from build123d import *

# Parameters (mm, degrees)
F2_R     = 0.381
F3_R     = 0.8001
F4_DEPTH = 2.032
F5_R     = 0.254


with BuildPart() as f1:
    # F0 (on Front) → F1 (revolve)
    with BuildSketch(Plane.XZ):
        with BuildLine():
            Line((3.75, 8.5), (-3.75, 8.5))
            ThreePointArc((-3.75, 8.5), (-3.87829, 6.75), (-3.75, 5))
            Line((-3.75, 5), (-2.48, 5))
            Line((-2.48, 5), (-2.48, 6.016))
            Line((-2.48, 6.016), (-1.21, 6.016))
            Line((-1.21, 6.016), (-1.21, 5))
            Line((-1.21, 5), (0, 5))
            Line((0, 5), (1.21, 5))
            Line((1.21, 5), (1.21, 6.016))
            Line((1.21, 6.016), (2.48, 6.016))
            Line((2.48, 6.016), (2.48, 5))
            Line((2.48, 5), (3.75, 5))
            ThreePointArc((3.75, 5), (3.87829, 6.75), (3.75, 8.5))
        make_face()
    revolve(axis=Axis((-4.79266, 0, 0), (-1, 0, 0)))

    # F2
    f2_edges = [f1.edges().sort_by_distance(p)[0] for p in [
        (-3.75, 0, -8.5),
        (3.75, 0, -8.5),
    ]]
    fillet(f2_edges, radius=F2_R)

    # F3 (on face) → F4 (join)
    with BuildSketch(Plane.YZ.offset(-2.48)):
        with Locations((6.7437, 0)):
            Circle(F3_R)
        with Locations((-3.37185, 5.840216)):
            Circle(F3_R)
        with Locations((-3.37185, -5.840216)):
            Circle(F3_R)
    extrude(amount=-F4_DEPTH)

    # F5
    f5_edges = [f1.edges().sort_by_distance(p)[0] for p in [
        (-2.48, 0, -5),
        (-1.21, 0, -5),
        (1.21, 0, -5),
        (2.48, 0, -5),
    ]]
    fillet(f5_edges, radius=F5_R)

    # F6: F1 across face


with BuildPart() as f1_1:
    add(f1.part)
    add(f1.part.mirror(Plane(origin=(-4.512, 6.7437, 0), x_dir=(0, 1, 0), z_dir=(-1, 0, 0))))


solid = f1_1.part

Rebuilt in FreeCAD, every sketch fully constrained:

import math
import FreeCAD as App
import Part
import Sketcher
Q = App.Units.Quantity


def edges_at(feature, points):
    """Names of the edges that pass closest to the given points."""
    edges = feature.Shape.Edges
    near = lambda p: min(range(len(edges)), key=lambda i: edges[i].distToShape(Part.Vertex(*p))[0])
    return sorted({f"Edge{near(p) + 1}" for p in points})

doc = App.newDocument("Part")
params = doc.addObject("Spreadsheet::Sheet", "Params")
for row, (alias, value) in enumerate([
    ("sketch1_width", "0.05 in"),
    ("sketch1_height", "0.04 in"),
    ("revolution_angle", "360 deg"),
    ("fillet_radius", "0.015 in"),
    ("sketch2_diameter", "0.063 in"),
    ("pad1_length", "0.08 in"),
    ("fillet2_radius", "0.01 in"),
], start=1):
    params.set(f"A{row}", alias)
    params.set(f"B{row}", "=" + value)
    params.setAlias(f"B{row}", alias)

body = doc.addObject("PartDesign::Body", "Body")

sketch1 = body.newObject("Sketcher::SketchObject", "Sketch")
sketch1.AttachmentSupport = (doc.getObject("XZ_Plane"), [""])
sketch1.MapMode = "FlatFace"
sketch1.addGeometry(Part.LineSegment(App.Vector(3.75, 8.5, 0), App.Vector(-3.75, 8.5, 0)), False)
sketch1.addGeometry(Part.ArcOfCircle(Part.Circle(App.Vector(8.121703, 6.75, 0), App.Vector(0, 0, 1), 11.999993), math.radians(171.614457), math.radians(188.385543)), False)
sketch1.addGeometry(Part.LineSegment(App.Vector(-3.75, 5, 0), App.Vector(-2.48, 5, 0)), False)
sketch1.addGeometry(Part.LineSegment(App.Vector(-2.48, 5, 0), App.Vector(-2.48, 6.016, 0)), False)
sketch1.addGeometry(Part.LineSegment(App.Vector(-2.48, 6.016, 0), App.Vector(-1.21, 6.016, 0)), False)
sketch1.addGeometry(Part.LineSegment(App.Vector(-1.21, 6.016, 0), App.Vector(-1.21, 5, 0)), False)
sketch1.addGeometry(Part.LineSegment(App.Vector(-1.21, 5, 0), App.Vector(1.21, 5, 0)), False)
sketch1.addGeometry(Part.LineSegment(App.Vector(1.21, 5, 0), App.Vector(1.21, 6.016, 0)), False)
sketch1.addGeometry(Part.LineSegment(App.Vector(1.21, 6.016, 0), App.Vector(2.48, 6.016, 0)), False)
sketch1.addGeometry(Part.LineSegment(App.Vector(2.48, 6.016, 0), App.Vector(2.48, 5, 0)), False)
sketch1.addGeometry(Part.LineSegment(App.Vector(2.48, 5, 0), App.Vector(3.75, 5, 0)), False)
sketch1.addGeometry(Part.ArcOfCircle(Part.Circle(App.Vector(-8.121703, 6.75, 0), App.Vector(0, 0, 1), 11.999993), math.radians(-8.385543), math.radians(8.385543)), False)
sketch1.addConstraint(Sketcher.Constraint("Coincident", 0, 2, 1, 1))
sketch1.addConstraint(Sketcher.Constraint("Coincident", 1, 2, 2, 1))
sketch1.addConstraint(Sketcher.Constraint("Coincident", 2, 2, 3, 1))
sketch1.addConstraint(Sketcher.Constraint("Coincident", 3, 2, 4, 1))
sketch1.addConstraint(Sketcher.Constraint("Coincident", 4, 2, 5, 1))
sketch1.addConstraint(Sketcher.Constraint("Coincident", 5, 2, 6, 1))
sketch1.addConstraint(Sketcher.Constraint("Coincident", 6, 2, 7, 1))
sketch1.addConstraint(Sketcher.Constraint("Coincident", 7, 2, 8, 1))
sketch1.addConstraint(Sketcher.Constraint("Coincident", 8, 2, 9, 1))
sketch1.addConstraint(Sketcher.Constraint("Coincident", 9, 2, 10, 1))
sketch1.addConstraint(Sketcher.Constraint("Coincident", 10, 2, 11, 1))
sketch1.addConstraint(Sketcher.Constraint("Coincident", 11, 2, 0, 1))
sketch1.addConstraint(Sketcher.Constraint("Horizontal", 0))
sketch1.addConstraint(Sketcher.Constraint("Horizontal", 2))
sketch1.addConstraint(Sketcher.Constraint("Vertical", 3))
sketch1.addConstraint(Sketcher.Constraint("Horizontal", 4))
sketch1.addConstraint(Sketcher.Constraint("Vertical", 5))
sketch1.addConstraint(Sketcher.Constraint("Horizontal", 6))
sketch1.addConstraint(Sketcher.Constraint("Vertical", 7))
sketch1.addConstraint(Sketcher.Constraint("Horizontal", 8))
sketch1.addConstraint(Sketcher.Constraint("Vertical", 9))
sketch1.addConstraint(Sketcher.Constraint("Horizontal", 10))
sketch1.addConstraint(Sketcher.Constraint("Equal", 1, 11))
sketch1.addConstraint(Sketcher.Constraint("Symmetric", 1, 3, 11, 3, -2))
sketch1.addConstraint(Sketcher.Constraint("Symmetric", 4, 2, 7, 2, -2))
sketch1.addConstraint(Sketcher.Constraint("Symmetric", 2, 2, 9, 2, -2))
sketch1.addConstraint(Sketcher.Constraint("Horizontal", 2, 2, 5, 2))
sketch1.addConstraint(Sketcher.Constraint("Vertical", 0, 2, 1, 2))
sketch1.addConstraint(Sketcher.Constraint("Equal", 2, 4))
sketch1.addConstraint(Sketcher.Constraint("DistanceX", 2, 1, 2, 2, Q("0.05 in")))
sketch1.addConstraint(Sketcher.Constraint("DistanceY", 3, 1, 3, 2, Q("0.04 in")))
sketch1.addConstraint(Sketcher.Constraint("DistanceX", 0, 2, 0, 1, Q("7.5 mm")))
sketch1.addConstraint(Sketcher.Constraint("Radius", 1, Q("11.999993 mm")))
sketch1.addConstraint(Sketcher.Constraint("DistanceY", -1, 1, 1, 3, Q("6.75 mm")))
sketch1.addConstraint(Sketcher.Constraint("DistanceY", -1, 1, 0, 2, Q("8.5 mm")))
sketch1.setExpression("Constraints[29]", "Params.sketch1_width")
sketch1.setExpression("Constraints[30]", "Params.sketch1_height")
revolution = body.newObject("PartDesign::Revolution", "Revolution")
revolution.Profile = sketch1
revolution.ReferenceAxis = (sketch1, ["H_Axis"])
revolution.setExpression("Angle", "Params.revolution_angle")
doc.recompute()

fillet = body.newObject("PartDesign::Fillet", "Fillet")
fillet.Base = (revolution, edges_at(revolution, [(-3.75, 0, -8.5), (3.75, 0, -8.5)]))
fillet.setExpression("Radius", "Params.fillet_radius")

sketch2 = body.newObject("Sketcher::SketchObject", "Sketch001")
sketch2.AttachmentSupport = (doc.getObject("YZ_Plane"), [""])
sketch2.MapMode = "FlatFace"
sketch2.AttachmentOffset = App.Placement(App.Vector(0, 0, -2.48), App.Rotation())
sketch2.addGeometry(Part.Circle(App.Vector(6.7437, 0, 0), App.Vector(0, 0, 1), 0.8001), False)
sketch2.addGeometry(Part.Circle(App.Vector(-3.37185, 5.840216, 0), App.Vector(0, 0, 1), 0.8001), False)
sketch2.addGeometry(Part.Circle(App.Vector(-3.37185, -5.840216, 0), App.Vector(0, 0, 1), 0.8001), False)
sketch2.addConstraint(Sketcher.Constraint("Equal", 0, 1))
sketch2.addConstraint(Sketcher.Constraint("Equal", 1, 2))
sketch2.addConstraint(Sketcher.Constraint("Symmetric", 1, 3, 2, 3, -1))
sketch2.addConstraint(Sketcher.Constraint("PointOnObject", 0, 3, -1))
sketch2.addConstraint(Sketcher.Constraint("Diameter", 0, Q("0.063 in")))
sketch2.addConstraint(Sketcher.Constraint("DistanceX", -1, 1, 0, 3, Q("0.2655 in")))
sketch2.addConstraint(Sketcher.Constraint("DistanceX", 1, 3, -1, 1, Q("3.37185 mm")))
sketch2.addConstraint(Sketcher.Constraint("DistanceY", -1, 1, 1, 3, Q("5.840216 mm")))
sketch2.setExpression("Constraints[4]", "Params.sketch2_diameter")
pad1 = body.newObject("PartDesign::Pad", "Pad")
pad1.Profile = sketch2
pad1.setExpression("Length", "Params.pad1_length")
pad1.Reversed = True
doc.recompute()

fillet2 = body.newObject("PartDesign::Fillet", "Fillet001")
fillet2.Base = (pad1, edges_at(pad1, [
    (-2.48, 0, -5),
    (-1.21, 0, -5),
    (1.21, 0, -5),
    (2.48, 0, -5),
]))
fillet2.setExpression("Radius", "Params.fillet2_radius")
body2 = doc.addObject("PartDesign::Body", "Body001")
doc.recompute()

body2.BaseFeature = body
doc.recompute()

mirroring = doc.addObject("Part::Mirroring", "Mirroring")
mirroring.Source = body
mirroring.Base = App.Vector(-4.512, 6.7437, 0)
mirroring.Normal = App.Vector(-1, 0, 0)
body3 = doc.addObject("PartDesign::Body", "Body002")
body3.BaseFeature = mirroring
boolean = body2.newObject("PartDesign::Boolean", "Boolean")
boolean.Type = "Fuse"
boolean.addObjects([body3])
doc.recompute()
mirroring.Visibility = False

doc.recompute()
